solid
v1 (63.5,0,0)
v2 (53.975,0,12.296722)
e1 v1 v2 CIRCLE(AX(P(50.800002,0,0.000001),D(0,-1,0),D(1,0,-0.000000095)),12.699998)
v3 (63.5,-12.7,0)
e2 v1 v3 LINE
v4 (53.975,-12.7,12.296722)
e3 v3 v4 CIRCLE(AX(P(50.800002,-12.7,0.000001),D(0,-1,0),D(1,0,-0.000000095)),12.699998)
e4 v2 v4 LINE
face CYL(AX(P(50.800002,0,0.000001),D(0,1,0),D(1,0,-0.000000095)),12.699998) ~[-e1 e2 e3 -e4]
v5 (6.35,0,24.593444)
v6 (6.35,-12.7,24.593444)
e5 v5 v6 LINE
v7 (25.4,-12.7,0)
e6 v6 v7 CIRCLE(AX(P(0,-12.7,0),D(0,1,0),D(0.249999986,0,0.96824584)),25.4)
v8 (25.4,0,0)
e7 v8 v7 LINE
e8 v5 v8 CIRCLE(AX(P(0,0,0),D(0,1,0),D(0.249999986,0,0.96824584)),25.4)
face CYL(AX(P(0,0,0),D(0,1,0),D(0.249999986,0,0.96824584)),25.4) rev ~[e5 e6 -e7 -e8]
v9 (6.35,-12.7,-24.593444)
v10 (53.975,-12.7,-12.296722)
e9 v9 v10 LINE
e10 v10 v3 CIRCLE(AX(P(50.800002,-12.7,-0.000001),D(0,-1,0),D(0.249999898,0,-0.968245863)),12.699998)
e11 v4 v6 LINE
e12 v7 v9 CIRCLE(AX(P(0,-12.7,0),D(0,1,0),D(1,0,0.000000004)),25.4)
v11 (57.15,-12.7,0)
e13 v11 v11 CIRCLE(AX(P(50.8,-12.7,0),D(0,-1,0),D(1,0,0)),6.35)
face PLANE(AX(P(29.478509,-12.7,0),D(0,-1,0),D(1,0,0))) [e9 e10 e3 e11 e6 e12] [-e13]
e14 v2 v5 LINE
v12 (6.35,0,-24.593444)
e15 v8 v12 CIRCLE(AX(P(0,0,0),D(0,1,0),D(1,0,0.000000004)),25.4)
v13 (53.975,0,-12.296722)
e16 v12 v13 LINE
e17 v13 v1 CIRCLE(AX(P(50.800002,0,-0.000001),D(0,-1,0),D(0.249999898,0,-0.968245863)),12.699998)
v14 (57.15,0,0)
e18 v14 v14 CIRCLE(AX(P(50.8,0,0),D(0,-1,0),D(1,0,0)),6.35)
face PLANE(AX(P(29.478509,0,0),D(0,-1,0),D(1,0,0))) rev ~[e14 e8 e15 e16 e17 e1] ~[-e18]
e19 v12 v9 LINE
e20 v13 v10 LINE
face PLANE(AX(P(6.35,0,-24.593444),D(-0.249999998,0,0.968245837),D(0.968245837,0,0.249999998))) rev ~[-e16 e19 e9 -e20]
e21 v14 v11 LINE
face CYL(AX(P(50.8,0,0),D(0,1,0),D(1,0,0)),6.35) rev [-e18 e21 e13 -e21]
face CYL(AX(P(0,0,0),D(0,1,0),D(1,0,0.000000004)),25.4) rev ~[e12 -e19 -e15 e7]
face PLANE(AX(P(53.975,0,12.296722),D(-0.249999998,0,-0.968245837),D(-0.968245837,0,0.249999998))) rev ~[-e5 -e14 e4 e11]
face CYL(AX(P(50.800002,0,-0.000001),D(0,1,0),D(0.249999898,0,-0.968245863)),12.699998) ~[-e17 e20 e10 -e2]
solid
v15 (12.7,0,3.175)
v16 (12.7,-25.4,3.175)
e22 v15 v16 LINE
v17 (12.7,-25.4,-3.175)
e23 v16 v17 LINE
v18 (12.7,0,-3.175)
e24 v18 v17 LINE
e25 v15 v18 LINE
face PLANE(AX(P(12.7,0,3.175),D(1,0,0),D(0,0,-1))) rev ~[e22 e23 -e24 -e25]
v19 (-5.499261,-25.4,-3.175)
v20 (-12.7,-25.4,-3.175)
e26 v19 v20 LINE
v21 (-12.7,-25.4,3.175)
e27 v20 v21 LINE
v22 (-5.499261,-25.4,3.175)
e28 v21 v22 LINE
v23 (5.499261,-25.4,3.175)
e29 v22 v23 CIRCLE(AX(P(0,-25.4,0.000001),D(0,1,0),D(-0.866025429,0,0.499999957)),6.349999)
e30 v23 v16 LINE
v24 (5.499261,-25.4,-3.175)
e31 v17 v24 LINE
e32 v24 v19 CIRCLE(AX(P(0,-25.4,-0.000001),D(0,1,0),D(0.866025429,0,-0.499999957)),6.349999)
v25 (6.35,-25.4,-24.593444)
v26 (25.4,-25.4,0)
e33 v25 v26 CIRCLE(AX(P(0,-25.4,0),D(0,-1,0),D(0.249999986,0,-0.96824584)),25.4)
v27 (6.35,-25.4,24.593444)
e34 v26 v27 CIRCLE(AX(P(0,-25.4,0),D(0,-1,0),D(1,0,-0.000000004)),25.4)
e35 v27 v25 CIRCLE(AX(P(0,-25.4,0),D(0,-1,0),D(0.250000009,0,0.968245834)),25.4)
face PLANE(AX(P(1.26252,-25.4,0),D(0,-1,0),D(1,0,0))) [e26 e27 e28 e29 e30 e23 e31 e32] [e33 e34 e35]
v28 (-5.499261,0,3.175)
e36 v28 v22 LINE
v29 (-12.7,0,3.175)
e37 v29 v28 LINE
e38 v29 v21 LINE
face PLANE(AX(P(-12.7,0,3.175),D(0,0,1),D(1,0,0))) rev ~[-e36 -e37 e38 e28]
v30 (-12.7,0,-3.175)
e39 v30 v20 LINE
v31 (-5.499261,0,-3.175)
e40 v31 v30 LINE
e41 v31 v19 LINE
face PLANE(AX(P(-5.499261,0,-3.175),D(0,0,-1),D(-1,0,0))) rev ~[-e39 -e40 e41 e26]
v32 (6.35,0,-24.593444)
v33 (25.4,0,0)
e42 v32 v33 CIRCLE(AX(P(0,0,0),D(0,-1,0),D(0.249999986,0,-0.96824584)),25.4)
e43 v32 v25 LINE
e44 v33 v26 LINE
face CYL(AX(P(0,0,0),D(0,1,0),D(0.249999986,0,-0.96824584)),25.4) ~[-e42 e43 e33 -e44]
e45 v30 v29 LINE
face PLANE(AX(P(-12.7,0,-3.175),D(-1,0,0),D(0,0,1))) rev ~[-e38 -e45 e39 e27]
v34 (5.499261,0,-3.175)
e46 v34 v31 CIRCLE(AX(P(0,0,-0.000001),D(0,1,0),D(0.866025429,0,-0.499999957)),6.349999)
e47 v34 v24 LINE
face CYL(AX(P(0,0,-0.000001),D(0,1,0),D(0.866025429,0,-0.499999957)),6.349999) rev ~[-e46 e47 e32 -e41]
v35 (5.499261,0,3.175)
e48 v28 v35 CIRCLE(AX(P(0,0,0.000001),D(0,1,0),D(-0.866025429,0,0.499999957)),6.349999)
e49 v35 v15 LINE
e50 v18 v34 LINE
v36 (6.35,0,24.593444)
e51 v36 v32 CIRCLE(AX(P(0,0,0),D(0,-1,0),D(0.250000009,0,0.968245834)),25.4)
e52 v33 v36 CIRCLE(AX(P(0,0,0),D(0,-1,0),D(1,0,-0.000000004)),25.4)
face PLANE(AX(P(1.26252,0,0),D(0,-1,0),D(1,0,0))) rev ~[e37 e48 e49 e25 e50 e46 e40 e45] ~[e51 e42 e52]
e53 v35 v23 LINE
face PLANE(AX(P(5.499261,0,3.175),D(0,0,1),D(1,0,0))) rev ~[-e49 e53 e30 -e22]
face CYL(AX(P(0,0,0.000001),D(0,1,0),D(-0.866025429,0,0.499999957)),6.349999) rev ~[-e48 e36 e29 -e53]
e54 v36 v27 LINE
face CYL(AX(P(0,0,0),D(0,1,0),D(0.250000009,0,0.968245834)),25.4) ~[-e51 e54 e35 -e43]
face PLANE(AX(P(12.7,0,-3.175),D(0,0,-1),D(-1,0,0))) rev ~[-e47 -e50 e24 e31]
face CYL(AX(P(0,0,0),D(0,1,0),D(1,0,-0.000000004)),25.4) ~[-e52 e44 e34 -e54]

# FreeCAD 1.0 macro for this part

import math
import FreeCAD as App
import Part
import Sketcher
Q = App.Units.Quantity

doc = App.newDocument("Part")
params = doc.addObject("Spreadsheet::Sheet", "Params")
for row, (alias, value) in enumerate([
    ("sketch1_radius", "1 in"),
    ("sketch1_radius2", "0.25 in"),
    ("sketch1_height", "0.25 in"),
    ("pad1_length", "1 in"),
    ("sketch2_radius", "1 in"),
    ("sketch2_diameter", "0.5 in"),
    ("sketch2_radius2", "0.4999999 in"),
    ("pad2_length", "0.5 in"),
], start=1):
    params.set(f"A{row}", alias)
    params.set(f"B{row}", "=" + value)
    params.setAlias(f"B{row}", alias)

body = doc.addObject("PartDesign::Body", "Body")

sketch1 = doc.addObject("Sketcher::SketchObject", "Sketch")
body.addObject(sketch1)
sketch1.AttachmentSupport = (doc.XZ_Plane, [""])
sketch1.MapMode = "FlatFace"
sketch1.addGeometry([
    Part.ArcOfCircle(Part.Circle(App.Vector(0, 0, 0), App.Vector(0, 0, 1), 25.4), math.radians(-75.522489), math.radians(0)),
    Part.ArcOfCircle(Part.Circle(App.Vector(0, 0, 0), App.Vector(0, 0, 1), 25.4), math.radians(0), math.radians(75.522489)),
    Part.ArcOfCircle(Part.Circle(App.Vector(0, 0, 0), App.Vector(0, 0, 1), 25.4), math.radians(75.522487), math.radians(284.477513)),
    Part.LineSegment(App.Vector(-12.7, 3.175, 0), App.Vector(-5.499261, 3.175, 0)),
    Part.ArcOfCircle(Part.Circle(App.Vector(0, 0.000001, 0), App.Vector(0, 0, 1), 6.349999), math.radians(29.999997), math.radians(150.000003)),
    Part.LineSegment(App.Vector(5.499261, 3.175, 0), App.Vector(12.7, 3.175, 0)),
    Part.LineSegment(App.Vector(12.7, 3.175, 0), App.Vector(12.7, -3.175, 0)),
    Part.LineSegment(App.Vector(12.7, -3.175, 0), App.Vector(5.499261, -3.175, 0)),
    Part.ArcOfCircle(Part.Circle(App.Vector(0, -0.000001, 0), App.Vector(0, 0, 1), 6.349999), math.radians(-150.000003), math.radians(-29.999997)),
    Part.LineSegment(App.Vector(-5.499261, -3.175, 0), App.Vector(-12.7, -3.175, 0)),
    Part.LineSegment(App.Vector(-12.7, -3.175, 0), App.Vector(-12.7, 3.175, 0)),
], False)
sketch1.addConstraint([
    Sketcher.Constraint("Tangent", 0, 2, 1, 1),
    Sketcher.Constraint("Tangent", 1, 2, 2, 1),
    Sketcher.Constraint("Tangent", 2, 2, 0, 1),
    Sketcher.Constraint("Coincident", 3, 2, 4, 2),
    Sketcher.Constraint("Coincident", 4, 1, 5, 1),
    Sketcher.Constraint("Coincident", 5, 2, 6, 1),
    Sketcher.Constraint("Coincident", 6, 2, 7, 1),
    Sketcher.Constraint("Coincident", 7, 2, 8, 2),
    Sketcher.Constraint("Coincident", 8, 1, 9, 1),
    Sketcher.Constraint("Coincident", 9, 2, 10, 1),
    Sketcher.Constraint("Coincident", 10, 2, 3, 1),
    Sketcher.Constraint("Horizontal", 3),
    Sketcher.Constraint("Horizontal", 5),
    Sketcher.Constraint("Vertical", 6),
    Sketcher.Constraint("Horizontal", 7),
    Sketcher.Constraint("Horizontal", 9),
    Sketcher.Constraint("Vertical", 10),
    Sketcher.Constraint("Coincident", 0, 3, -1, 1),
    Sketcher.Constraint("Coincident", 4, 3, -1, 1),
    Sketcher.Constraint("Coincident", 8, 3, -1, 1),
    Sketcher.Constraint("Equal", 4, 8),
    Sketcher.Constraint("Symmetric", 5, 2, 9, 2, -1, 1),
    Sketcher.Constraint("PointOnObject", 0, 2, -1),
    Sketcher.Constraint("Horizontal", 3, 2, 4, 1),
    Sketcher.Constraint("Horizontal", 7, 2, 8, 1),
    Sketcher.Constraint("Vertical", 1, 2, 2, 2),
    Sketcher.Constraint("Radius", 0, Q("1 in")),
    Sketcher.Constraint("Radius", 4, Q("0.25 in")),
    Sketcher.Constraint("DistanceY", 6, 2, 6, 1, Q("0.25 in")),
    Sketcher.Constraint("DistanceX", -1, 1, 5, 2, Q("0.5 in")),
    Sketcher.Constraint("DistanceX", -1, 1, 1, 2, Q("0.25 in")),
])
sketch1.setExpression("Constraints[26]", "Params.sketch1_radius")
sketch1.setExpression("Constraints[27]", "Params.sketch1_radius2")
sketch1.setExpression("Constraints[28]", "Params.sketch1_height")
pad1 = doc.addObject("PartDesign::Pad", "Pad")
body.addObject(pad1)
pad1.Profile = sketch1
pad1.setExpression("Length", "Params.pad1_length")
body2 = doc.addObject("PartDesign::Body", "Body001")

sketch2 = doc.addObject("Sketcher::SketchObject", "Sketch001")
body2.addObject(sketch2)
sketch2.AttachmentSupport = (doc.getObject("XZ_Plane001"), [""])
sketch2.MapMode = "FlatFace"
sketch2.addGeometry([
    Part.ArcOfCircle(Part.Circle(App.Vector(0, 0, 0), App.Vector(0, 0, 1), 25.4), math.radians(0), math.radians(75.522489)),
    Part.ArcOfCircle(Part.Circle(App.Vector(0, 0, 0), App.Vector(0, 0, 1), 25.4), math.radians(-75.522489), math.radians(0)),
    Part.LineSegment(App.Vector(6.35, -24.593444, 0), App.Vector(53.975, -12.296722, 0)),
    Part.ArcOfCircle(Part.Circle(App.Vector(50.800002, -0.000001, 0), App.Vector(0, 0, 1), 12.699998), math.radians(-75.522494), math.radians(0.000005)),
    Part.ArcOfCircle(Part.Circle(App.Vector(50.800002, 0.000001, 0), App.Vector(0, 0, 1), 12.699998), math.radians(-0.000005), math.radians(75.522494)),
    Part.LineSegment(App.Vector(53.975, 12.296722, 0), App.Vector(6.35, 24.593444, 0)),
    Part.Circle(App.Vector(50.8, 0, 0), App.Vector(0, 0, 1), 6.35),
], False)
sketch2.addConstraint([
    Sketcher.Constraint("Tangent", 0, 1, 1, 2),
    Sketcher.Constraint("Tangent", 1, 1, 2, 1),
    Sketcher.Constraint("Tangent", 2, 2, 3, 1),
    Sketcher.Constraint("Tangent", 3, 2, 4, 1),
    Sketcher.Constraint("Tangent", 4, 2, 5, 1),
    Sketcher.Constraint("Tangent", 5, 2, 0, 2),
    Sketcher.Constraint("Coincident", 0, 3, -1, 1),
    Sketcher.Constraint("Coincident", 6, 3, 3, 3),
    Sketcher.Constraint("Equal", 0, 1),
    Sketcher.Constraint("Equal", 3, 4),
    Sketcher.Constraint("PointOnObject", 3, 3, -1),
    Sketcher.Constraint("PointOnObject", 0, 1, -1),
    Sketcher.Constraint("PointOnObject", 3, 2, -1),
    Sketcher.Constraint("Radius", 0, Q("1 in")),
    Sketcher.Constraint("Diameter", 6, Q("0.5 in")),
    Sketcher.Constraint("Radius", 3, Q("0.4999999 in")),
    Sketcher.Constraint("DistanceX", -1, 1, 3, 3, Q("2.0000001 in")),
])
sketch2.setExpression("Constraints[13]", "Params.sketch2_radius")
sketch2.setExpression("Constraints[14]", "Params.sketch2_diameter")
sketch2.setExpression("Constraints[15]", "Params.sketch2_radius2")
pad2 = doc.addObject("PartDesign::Pad", "Pad001")
body2.addObject(pad2)
pad2.Profile = sketch2
pad2.setExpression("Length", "Params.pad2_length")

doc.recompute()
